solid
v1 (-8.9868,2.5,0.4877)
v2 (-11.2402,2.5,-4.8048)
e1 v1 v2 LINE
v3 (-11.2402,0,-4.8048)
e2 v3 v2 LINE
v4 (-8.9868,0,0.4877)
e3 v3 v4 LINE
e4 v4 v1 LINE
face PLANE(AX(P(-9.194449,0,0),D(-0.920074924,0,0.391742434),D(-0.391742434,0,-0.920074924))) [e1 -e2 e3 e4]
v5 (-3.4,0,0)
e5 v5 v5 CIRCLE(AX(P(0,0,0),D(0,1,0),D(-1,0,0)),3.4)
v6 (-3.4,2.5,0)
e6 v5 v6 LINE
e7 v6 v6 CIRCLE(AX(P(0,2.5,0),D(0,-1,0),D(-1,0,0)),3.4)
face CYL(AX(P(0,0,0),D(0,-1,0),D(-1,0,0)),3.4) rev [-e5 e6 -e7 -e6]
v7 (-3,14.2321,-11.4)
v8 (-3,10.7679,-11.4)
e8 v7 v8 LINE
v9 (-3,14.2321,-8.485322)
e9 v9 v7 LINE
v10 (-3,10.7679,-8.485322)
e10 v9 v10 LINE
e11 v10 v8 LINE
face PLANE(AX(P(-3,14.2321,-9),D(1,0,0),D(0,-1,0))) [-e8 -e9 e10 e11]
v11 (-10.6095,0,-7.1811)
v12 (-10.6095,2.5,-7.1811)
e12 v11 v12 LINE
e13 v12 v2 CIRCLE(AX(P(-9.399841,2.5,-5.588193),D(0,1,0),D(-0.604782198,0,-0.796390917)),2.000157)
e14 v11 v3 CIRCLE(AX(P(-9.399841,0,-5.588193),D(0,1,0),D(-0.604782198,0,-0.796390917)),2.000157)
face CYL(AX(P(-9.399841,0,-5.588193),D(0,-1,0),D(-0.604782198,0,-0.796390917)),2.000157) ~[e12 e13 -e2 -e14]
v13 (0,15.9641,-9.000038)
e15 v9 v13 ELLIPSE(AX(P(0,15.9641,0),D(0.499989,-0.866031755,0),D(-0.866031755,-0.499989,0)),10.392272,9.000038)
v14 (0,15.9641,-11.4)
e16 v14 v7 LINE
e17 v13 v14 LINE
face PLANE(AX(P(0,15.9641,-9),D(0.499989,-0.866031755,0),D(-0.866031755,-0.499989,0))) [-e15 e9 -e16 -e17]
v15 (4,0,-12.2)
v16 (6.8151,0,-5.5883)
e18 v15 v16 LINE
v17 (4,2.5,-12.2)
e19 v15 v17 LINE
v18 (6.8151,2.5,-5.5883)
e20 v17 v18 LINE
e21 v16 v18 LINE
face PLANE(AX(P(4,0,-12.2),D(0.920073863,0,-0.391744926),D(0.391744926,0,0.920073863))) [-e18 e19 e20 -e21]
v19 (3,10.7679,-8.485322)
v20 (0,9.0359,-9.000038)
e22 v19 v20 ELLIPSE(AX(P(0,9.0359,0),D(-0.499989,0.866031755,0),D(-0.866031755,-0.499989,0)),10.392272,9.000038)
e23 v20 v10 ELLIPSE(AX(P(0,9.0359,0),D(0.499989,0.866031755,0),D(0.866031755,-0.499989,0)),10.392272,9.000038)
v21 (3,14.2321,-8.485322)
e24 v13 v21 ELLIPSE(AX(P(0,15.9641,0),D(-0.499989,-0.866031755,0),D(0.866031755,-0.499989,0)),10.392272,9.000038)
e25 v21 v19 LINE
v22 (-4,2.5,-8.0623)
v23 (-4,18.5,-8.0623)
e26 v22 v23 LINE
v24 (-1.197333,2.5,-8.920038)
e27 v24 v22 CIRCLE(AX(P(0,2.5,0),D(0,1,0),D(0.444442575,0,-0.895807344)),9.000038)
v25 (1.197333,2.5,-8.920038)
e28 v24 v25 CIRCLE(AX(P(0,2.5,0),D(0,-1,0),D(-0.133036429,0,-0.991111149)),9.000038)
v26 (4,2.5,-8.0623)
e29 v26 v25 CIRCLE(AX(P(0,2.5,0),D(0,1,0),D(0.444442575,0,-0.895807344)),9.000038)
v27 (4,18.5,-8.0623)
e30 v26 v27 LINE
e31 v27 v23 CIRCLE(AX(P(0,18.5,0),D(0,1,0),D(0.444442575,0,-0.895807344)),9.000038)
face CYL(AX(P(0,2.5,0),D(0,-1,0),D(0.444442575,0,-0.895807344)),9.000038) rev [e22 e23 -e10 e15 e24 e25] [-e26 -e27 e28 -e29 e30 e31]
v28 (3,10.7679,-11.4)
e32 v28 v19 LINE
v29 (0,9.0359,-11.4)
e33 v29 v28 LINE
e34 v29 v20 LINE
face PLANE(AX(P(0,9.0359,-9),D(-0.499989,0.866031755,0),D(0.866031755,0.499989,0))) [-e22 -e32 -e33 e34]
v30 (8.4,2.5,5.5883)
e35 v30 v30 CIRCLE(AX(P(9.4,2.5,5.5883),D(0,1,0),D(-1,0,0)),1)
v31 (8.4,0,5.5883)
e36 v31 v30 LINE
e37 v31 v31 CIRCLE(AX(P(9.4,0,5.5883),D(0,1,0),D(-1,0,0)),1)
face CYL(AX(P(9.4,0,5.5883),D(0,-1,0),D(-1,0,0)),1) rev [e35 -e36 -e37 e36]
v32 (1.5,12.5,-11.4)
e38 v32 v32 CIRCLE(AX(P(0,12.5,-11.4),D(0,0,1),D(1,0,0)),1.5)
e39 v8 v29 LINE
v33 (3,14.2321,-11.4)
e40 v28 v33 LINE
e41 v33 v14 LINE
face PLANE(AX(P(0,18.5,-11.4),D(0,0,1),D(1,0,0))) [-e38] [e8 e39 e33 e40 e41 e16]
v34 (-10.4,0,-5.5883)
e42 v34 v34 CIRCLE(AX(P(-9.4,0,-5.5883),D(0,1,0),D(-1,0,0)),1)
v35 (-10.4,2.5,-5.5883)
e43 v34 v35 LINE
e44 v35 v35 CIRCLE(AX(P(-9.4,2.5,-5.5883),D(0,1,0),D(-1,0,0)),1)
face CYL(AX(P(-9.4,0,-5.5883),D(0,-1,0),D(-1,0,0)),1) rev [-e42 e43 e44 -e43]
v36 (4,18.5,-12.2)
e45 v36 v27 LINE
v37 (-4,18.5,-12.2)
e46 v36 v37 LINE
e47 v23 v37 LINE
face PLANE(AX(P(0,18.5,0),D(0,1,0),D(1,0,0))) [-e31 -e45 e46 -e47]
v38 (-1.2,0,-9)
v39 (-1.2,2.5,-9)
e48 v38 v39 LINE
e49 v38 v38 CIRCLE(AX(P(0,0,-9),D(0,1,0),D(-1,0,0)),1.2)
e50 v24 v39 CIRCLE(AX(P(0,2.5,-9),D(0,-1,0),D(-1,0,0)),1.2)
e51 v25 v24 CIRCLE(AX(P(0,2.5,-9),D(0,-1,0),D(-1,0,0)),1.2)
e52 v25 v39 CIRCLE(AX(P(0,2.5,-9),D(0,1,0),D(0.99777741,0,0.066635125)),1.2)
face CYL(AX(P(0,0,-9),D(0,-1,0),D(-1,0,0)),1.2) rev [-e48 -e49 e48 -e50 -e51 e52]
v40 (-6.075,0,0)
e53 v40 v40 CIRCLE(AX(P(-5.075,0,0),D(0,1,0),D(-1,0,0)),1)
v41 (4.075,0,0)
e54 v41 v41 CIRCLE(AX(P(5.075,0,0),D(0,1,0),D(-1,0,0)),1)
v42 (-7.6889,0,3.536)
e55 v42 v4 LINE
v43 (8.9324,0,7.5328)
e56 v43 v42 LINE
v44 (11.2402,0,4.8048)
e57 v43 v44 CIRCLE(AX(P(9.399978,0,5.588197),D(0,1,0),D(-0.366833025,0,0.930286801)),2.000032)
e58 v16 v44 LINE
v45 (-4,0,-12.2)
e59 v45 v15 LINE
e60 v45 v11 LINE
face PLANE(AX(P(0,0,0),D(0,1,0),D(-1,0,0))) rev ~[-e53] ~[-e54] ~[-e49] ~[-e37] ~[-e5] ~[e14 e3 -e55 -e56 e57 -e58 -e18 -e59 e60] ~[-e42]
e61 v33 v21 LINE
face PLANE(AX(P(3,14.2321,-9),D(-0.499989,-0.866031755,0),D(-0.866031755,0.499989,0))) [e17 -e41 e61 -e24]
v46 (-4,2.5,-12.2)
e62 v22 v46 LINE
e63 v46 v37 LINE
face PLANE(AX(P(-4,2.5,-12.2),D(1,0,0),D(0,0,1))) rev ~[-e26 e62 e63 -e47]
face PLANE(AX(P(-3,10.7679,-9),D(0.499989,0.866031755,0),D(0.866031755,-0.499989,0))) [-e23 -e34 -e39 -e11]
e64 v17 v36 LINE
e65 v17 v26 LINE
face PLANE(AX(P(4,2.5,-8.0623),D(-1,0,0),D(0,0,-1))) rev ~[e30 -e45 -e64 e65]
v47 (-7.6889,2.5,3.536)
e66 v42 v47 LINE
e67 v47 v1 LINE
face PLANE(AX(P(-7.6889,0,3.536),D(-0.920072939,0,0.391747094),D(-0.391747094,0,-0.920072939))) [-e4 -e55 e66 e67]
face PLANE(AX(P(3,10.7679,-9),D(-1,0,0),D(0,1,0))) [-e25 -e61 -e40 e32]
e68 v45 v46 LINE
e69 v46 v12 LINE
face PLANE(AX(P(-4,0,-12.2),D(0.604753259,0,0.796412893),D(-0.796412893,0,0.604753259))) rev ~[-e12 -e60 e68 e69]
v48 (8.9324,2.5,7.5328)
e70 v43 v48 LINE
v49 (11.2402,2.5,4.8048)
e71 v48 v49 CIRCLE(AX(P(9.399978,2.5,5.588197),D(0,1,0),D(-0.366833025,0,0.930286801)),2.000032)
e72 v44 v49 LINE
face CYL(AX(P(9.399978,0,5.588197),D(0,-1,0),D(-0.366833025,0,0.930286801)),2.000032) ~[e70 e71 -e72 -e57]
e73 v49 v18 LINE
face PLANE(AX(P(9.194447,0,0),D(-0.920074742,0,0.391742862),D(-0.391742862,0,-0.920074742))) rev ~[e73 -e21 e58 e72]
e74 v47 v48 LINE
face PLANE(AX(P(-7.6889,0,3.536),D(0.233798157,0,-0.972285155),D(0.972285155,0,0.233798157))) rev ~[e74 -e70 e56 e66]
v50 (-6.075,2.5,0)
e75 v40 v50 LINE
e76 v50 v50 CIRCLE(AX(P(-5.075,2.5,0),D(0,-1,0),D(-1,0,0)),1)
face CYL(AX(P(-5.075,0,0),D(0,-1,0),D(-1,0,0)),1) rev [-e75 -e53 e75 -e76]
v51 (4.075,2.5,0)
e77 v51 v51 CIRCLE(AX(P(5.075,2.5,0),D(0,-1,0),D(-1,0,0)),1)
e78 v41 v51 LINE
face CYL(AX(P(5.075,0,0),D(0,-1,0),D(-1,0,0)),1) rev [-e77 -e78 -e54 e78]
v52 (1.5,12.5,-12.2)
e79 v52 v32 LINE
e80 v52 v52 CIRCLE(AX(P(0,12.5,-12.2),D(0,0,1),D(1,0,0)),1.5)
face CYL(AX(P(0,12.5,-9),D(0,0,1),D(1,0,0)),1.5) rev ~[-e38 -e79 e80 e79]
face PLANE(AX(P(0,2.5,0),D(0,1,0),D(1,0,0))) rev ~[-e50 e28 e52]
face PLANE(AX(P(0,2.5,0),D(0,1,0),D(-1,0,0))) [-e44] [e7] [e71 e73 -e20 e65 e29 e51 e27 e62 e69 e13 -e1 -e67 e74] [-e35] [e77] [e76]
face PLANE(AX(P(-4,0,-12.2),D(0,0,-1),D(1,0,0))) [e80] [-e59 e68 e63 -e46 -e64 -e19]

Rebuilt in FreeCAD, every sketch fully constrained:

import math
import FreeCAD as App
import Part
import Sketcher

V = App.Vector
Q = App.Units.Quantity

doc = App.newDocument("Part")
body = doc.addObject("PartDesign::Body", "Body")

sketch1 = body.newObject("Sketcher::SketchObject", "Sketch")
sketch1.AttachmentSupport = (doc.getObject("XZ_Plane"), [""])
sketch1.MapMode = "FlatFace"
sketch1.addGeometry([
    Part.LineSegment(V(-11.2, -4.8, 0), V(-9, 0.5, 0)),
    Part.LineSegment(V(-9, 0.5, 0), V(-7.7, 3.5, 0)),
    Part.LineSegment(V(-7.7, 3.5, 0), V(8.9, 7.5, 0)),
    Part.ArcOfCircle(Part.Circle(V(9.4, 5.6, 0), V(0, 0, 1), 2), math.radians(-23), math.radians(104)),
    Part.LineSegment(V(11.2, 4.8, 0), V(6.8, -5.6, 0)),
    Part.LineSegment(V(6.8, -5.6, 0), V(4, -12.2, 0)),
    Part.LineSegment(V(4, -12.2, 0), V(-4, -12.2, 0)),
    Part.LineSegment(V(-4, -12.2, 0), V(-10.6, -7.2, 0)),
    Part.ArcOfCircle(Part.Circle(V(-9.4, -5.6, 0), V(0, 0, 1), 2), math.radians(157), math.radians(233)),
    Part.Circle(V(0, -9, 0), V(0, 0, 1), 1.2),
    Part.Circle(V(0, 0, 0), V(0, 0, 1), 3.4),
    Part.Circle(V(-5.1, 0, 0), V(0, 0, 1), 1),
    Part.Circle(V(-9.4, -5.6, 0), V(0, 0, 1), 1),
    Part.Circle(V(5.1, 0, 0), V(0, 0, 1), 1),
    Part.Circle(V(9.4, 5.6, 0), V(0, 0, 1), 1),
], False)
sketch1.addConstraint([
    Sketcher.Constraint("Coincident", 0, 2, 1, 1),
    Sketcher.Constraint("Coincident", 1, 2, 2, 1),
    Sketcher.Constraint("Tangent", 2, 2, 3, 2),
    Sketcher.Constraint("Tangent", 3, 1, 4, 1),
    Sketcher.Constraint("Coincident", 4, 2, 5, 1),
    Sketcher.Constraint("Coincident", 5, 2, 6, 1),
    Sketcher.Constraint("Coincident", 6, 2, 7, 1),
    Sketcher.Constraint("Tangent", 7, 2, 8, 2),
    Sketcher.Constraint("Tangent", 8, 1, 0, 1),
    Sketcher.Constraint("Horizontal", 6),
    Sketcher.Constraint("Coincident", 10, 3, -1, 1),
    Sketcher.Constraint("Coincident", 12, 3, 8, 3),
    Sketcher.Constraint("Coincident", 14, 3, 3, 3),
    Sketcher.Constraint("Equal", 3, 8),
    Sketcher.Constraint("Equal", 11, 12),
    Sketcher.Constraint("Equal", 12, 13),
    Sketcher.Constraint("Equal", 13, 14),
    Sketcher.Constraint("Symmetric", 3, 3, 8, 3, -1, 1),
    Sketcher.Constraint("Symmetric", 11, 3, 13, 3, -1, 1),
    Sketcher.Constraint("PointOnObject", 9, 3, -2),
    Sketcher.Constraint("PointOnObject", 11, 3, -1),
    Sketcher.Constraint("Parallel", 0, 1),
    Sketcher.Constraint("Parallel", 1, 4),
    Sketcher.Constraint("Parallel", 4, 5),
    Sketcher.Constraint("Horizontal", 12, 3, 4, 2),
    Sketcher.Constraint("Diameter", 11, 2.0),
    Sketcher.Constraint("Radius", 3, 2.0),
    Sketcher.Constraint("Diameter", 9, 2.4),
    Sketcher.Constraint("Diameter", 10, 6.8),
    Sketcher.Constraint("DistanceX", 6, 2, 6, 1, 8.0),
    Sketcher.Constraint("DistanceY", 9, 3, -1, 1, 9.0),
    Sketcher.Constraint("DistanceX", -1, 1, 5, 2, 4.0),
    Sketcher.Constraint("DistanceX", -1, 1, 3, 3, 9.4),
    Sketcher.Constraint("DistanceY", 5, 2, 9, 3, 3.2),
    Sketcher.Constraint("DistanceX", 11, 3, 13, 3, 10.15),
    Sketcher.Constraint("Angle", 2, Q("13.5208 deg")),
    Sketcher.Constraint("Angle", 7, Q("142.789 deg")),
    Sketcher.Constraint("Distance", 1, 3.313),
])
pad1 = body.newObject("PartDesign::Pad", "Pad")
pad1.Profile = sketch1
pad1.Length = 2.5
pad1.Reversed = True

sketch2 = body.newObject("Sketcher::SketchObject", "Sketch001")
sketch2.AttachmentSupport = (doc.getObject("XZ_Plane"), [""])
sketch2.MapMode = "FlatFace"
sketch2.AttachmentOffset = App.Placement(V(0, 0, -2.5), App.Rotation())
sketch2.addGeometry([
    Part.LineSegment(V(4, -12.2, 0), V(-4, -12.2, 0)),
    Part.LineSegment(V(-4, -12.2, 0), V(-4, -8.1, 0)),
    Part.ArcOfCircle(Part.Circle(V(0, 0, 0), V(0, 0, 1), 9), math.radians(-116), math.radians(-64)),
    Part.LineSegment(V(4, -8.1, 0), V(4, -12.2, 0)),
], False)
sketch2.addConstraint([
    Sketcher.Constraint("Coincident", 0, 2, 1, 1),
    Sketcher.Constraint("Coincident", 1, 2, 2, 1),
    Sketcher.Constraint("Coincident", 2, 2, 3, 1),
    Sketcher.Constraint("Coincident", 3, 2, 0, 1),
    Sketcher.Constraint("Horizontal", 0),
    Sketcher.Constraint("Vertical", 1),
    Sketcher.Constraint("Vertical", 3),
    Sketcher.Constraint("Coincident", 2, 3, -1, 1),
    Sketcher.Constraint("Horizontal", 1, 2, 2, 2),
    Sketcher.Constraint("Radius", 2, 9.0),
    Sketcher.Constraint("DistanceX", 0, 2, 0, 1, 8.0),
    Sketcher.Constraint("DistanceY", 0, 2, -1, 1, 12.2),
])
pad2 = body.newObject("PartDesign::Pad", "Pad001")
pad2.Profile = sketch2
pad2.Length = 16
pad2.Reversed = True

sketch3 = body.newObject("Sketcher::SketchObject", "Sketch002")
sketch3.AttachmentSupport = (doc.getObject("XY_Plane"), [""])
sketch3.MapMode = "FlatFace"
sketch3.AttachmentOffset = App.Placement(V(0, 0, -9), App.Rotation())
sketch3.addGeometry(Part.Circle(V(0, 12.5, 0), V(0, 0, 1), 1.5), False)
sketch3.addConstraint([
    Sketcher.Constraint("PointOnObject", 0, 3, -2),
    Sketcher.Constraint("Diameter", 0, 3.0),
    Sketcher.Constraint("DistanceY", -1, 1, 0, 3, 12.5),
])
pocket1 = body.newObject("PartDesign::Pocket", "Pocket")
pocket1.Profile = sketch3
pocket1.Type = "ThroughAll"
pocket1.Midplane = True

sketch4 = body.newObject("Sketcher::SketchObject", "Sketch003")
sketch4.AttachmentSupport = (doc.getObject("XY_Plane"), [""])
sketch4.MapMode = "FlatFace"
sketch4.AttachmentOffset = App.Placement(V(0, 0, -9), App.Rotation())
sketch4.addGeometry([
    Part.LineSegment(V(-3, 10.8, 0), V(0, 9, 0)),
    Part.LineSegment(V(0, 9, 0), V(3, 10.8, 0)),
    Part.LineSegment(V(3, 10.8, 0), V(3, 14.2, 0)),
    Part.LineSegment(V(3, 14.2, 0), V(0, 16, 0)),
    Part.LineSegment(V(0, 16, 0), V(-3, 14.2, 0)),
    Part.LineSegment(V(-3, 14.2, 0), V(-3, 10.8, 0)),
], False)
sketch4.addConstraint([
    Sketcher.Constraint("Coincident", 0, 2, 1, 1),
    Sketcher.Constraint("Coincident", 1, 2, 2, 1),
    Sketcher.Constraint("Coincident", 2, 2, 3, 1),
    Sketcher.Constraint("Coincident", 3, 2, 4, 1),
    Sketcher.Constraint("Coincident", 4, 2, 5, 1),
    Sketcher.Constraint("Coincident", 5, 2, 0, 1),
    Sketcher.Constraint("Vertical", 2),
    Sketcher.Constraint("Vertical", 5),
    Sketcher.Constraint("Symmetric", 2, 2, 4, 2, -2),
    Sketcher.Constraint("PointOnObject", 0, 2, -2),
    Sketcher.Constraint("PointOnObject", 3, 2, -2),
    Sketcher.Constraint("Parallel", 0, 3),
    Sketcher.Constraint("Parallel", 1, 4),
    Sketcher.Constraint("DistanceX", -1, 1, 1, 2, 3.0),
    Sketcher.Constraint("Angle", 0, Q("-29.9993 deg")),
    Sketcher.Constraint("DistanceY", 2, 1, 2, 2, 3.4642),
    Sketcher.Constraint("DistanceY", -1, 1, 0, 2, 9.036),
])
pocket2 = body.newObject("PartDesign::Pocket", "Pocket001")
pocket2.Profile = sketch4
pocket2.Type = "TwoLengths"
pocket2.Length = 10
pocket2.Length2 = 2.4
pocket2.Reversed = True

doc.recompute()
